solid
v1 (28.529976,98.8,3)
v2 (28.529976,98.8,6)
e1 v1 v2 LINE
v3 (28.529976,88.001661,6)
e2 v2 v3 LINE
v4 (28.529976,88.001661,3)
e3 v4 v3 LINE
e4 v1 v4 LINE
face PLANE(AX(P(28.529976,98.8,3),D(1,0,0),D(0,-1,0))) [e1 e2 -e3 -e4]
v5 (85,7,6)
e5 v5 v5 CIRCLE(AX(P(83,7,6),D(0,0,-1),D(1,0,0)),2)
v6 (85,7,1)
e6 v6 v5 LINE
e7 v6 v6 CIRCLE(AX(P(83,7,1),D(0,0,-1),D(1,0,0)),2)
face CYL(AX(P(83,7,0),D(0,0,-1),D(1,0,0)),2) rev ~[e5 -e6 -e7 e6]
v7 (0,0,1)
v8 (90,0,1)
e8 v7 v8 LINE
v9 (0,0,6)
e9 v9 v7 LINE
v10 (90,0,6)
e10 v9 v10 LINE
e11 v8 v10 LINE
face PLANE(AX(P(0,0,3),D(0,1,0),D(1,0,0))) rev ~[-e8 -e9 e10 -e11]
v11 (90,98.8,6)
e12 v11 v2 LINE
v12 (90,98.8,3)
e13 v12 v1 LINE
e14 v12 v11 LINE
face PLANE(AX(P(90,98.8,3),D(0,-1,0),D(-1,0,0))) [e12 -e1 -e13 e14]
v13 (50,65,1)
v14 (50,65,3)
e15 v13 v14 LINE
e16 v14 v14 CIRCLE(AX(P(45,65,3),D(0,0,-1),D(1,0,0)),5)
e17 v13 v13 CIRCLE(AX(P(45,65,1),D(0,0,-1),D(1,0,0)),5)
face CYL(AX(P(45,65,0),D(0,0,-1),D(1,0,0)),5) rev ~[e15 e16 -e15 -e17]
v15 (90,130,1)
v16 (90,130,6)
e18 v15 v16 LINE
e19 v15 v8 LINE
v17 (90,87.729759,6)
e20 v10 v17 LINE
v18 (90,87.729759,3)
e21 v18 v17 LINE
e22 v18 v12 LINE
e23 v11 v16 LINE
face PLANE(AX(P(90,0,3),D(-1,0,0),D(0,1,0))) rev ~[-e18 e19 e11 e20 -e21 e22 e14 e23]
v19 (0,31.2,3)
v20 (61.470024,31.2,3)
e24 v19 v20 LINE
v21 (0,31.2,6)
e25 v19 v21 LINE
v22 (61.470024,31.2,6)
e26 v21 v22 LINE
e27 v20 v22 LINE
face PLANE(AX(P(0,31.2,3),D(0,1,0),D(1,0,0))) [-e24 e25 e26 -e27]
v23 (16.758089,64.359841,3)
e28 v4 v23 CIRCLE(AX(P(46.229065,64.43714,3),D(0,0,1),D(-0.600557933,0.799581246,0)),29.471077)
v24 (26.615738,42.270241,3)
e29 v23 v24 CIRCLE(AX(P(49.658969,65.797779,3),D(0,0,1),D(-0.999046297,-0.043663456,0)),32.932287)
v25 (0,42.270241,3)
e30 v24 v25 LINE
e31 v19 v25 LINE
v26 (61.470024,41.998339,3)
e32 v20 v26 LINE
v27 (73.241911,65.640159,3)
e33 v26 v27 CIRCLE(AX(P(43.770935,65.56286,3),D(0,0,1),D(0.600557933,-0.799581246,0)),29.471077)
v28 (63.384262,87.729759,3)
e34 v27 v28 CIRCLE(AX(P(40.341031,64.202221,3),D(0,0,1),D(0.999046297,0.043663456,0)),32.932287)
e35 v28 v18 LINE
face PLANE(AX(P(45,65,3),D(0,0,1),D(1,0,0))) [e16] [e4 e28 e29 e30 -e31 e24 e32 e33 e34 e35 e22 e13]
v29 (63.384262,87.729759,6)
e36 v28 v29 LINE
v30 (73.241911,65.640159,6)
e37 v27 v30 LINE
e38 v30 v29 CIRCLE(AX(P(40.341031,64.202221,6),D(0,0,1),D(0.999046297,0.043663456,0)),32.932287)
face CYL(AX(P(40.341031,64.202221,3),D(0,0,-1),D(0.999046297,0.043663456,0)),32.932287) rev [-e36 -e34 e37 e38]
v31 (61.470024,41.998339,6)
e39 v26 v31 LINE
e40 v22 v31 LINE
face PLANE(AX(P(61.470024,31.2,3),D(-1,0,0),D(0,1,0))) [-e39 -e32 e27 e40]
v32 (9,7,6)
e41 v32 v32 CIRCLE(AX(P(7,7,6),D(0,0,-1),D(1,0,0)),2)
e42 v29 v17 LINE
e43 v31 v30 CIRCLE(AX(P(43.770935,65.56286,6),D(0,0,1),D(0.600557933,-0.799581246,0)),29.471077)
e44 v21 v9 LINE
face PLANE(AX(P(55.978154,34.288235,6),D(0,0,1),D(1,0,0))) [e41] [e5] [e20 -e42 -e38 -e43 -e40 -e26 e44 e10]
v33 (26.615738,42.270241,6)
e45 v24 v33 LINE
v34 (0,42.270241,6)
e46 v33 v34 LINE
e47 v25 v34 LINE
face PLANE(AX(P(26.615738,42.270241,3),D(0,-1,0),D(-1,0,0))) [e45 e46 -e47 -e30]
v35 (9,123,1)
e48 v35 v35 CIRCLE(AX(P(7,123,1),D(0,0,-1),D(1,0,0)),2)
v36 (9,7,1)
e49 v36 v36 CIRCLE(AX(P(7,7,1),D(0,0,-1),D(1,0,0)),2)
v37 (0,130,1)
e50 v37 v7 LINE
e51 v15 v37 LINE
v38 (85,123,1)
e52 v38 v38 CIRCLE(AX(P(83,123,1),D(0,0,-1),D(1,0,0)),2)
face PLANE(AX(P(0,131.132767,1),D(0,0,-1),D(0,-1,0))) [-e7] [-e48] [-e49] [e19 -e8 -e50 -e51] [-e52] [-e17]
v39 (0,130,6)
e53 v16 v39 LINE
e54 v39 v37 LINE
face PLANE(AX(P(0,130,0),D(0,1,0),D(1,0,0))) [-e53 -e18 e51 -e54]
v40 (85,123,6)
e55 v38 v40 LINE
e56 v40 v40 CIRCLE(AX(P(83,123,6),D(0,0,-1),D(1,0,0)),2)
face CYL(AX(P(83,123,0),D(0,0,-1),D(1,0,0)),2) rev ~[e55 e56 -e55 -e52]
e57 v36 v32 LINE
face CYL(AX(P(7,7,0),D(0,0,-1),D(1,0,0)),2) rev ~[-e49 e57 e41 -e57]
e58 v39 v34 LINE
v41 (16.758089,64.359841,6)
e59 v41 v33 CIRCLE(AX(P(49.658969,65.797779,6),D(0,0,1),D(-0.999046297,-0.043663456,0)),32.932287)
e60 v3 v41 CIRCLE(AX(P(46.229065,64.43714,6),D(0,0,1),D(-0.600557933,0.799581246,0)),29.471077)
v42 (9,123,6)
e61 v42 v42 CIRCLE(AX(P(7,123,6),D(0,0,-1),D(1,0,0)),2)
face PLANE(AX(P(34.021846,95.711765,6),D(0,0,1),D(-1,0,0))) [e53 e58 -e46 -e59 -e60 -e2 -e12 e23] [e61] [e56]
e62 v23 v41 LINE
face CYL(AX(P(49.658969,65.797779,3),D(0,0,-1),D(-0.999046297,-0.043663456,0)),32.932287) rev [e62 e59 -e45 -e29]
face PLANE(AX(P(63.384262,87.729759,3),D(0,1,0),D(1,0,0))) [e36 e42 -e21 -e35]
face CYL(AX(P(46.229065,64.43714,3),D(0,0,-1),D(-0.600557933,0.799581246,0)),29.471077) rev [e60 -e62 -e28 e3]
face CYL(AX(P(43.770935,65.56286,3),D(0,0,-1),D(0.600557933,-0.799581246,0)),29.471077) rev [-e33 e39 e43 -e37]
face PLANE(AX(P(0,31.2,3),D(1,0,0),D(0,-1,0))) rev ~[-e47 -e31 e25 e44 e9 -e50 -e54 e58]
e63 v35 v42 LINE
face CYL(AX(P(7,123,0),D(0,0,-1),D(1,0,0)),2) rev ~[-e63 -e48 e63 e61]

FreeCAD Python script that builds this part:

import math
import FreeCAD as App
import Part
import Sketcher
from FreeCAD import Vector


def add_polygon(sketch, points):
    """Adds a closed chain of lines whose ends are joined by coincident constraints."""
    first, n = sketch.GeometryCount, len(points)
    for a, b in zip(points, points[1:] + points[:1]):
        sketch.addGeometry(Part.LineSegment(App.Vector(*a, 0), App.Vector(*b, 0)), False)
    for i in range(n):
        sketch.addConstraint(Sketcher.Constraint("Coincident", first + i, 2, first + (i + 1) % n, 1))

doc = App.newDocument("Part")
body = doc.addObject("PartDesign::Body", "Body")

sketch1 = body.newObject("Sketcher::SketchObject", "Sketch")
sketch1.AttachmentSupport = (doc.getObject("XY_Plane"), [""])
sketch1.MapMode = "FlatFace"
add_polygon(sketch1, [(0, 130), (0, 0), (90, 0), (90, 130)])
sketch1.addConstraint([
    Sketcher.Constraint("Vertical", 0),
    Sketcher.Constraint("Horizontal", 1),
    Sketcher.Constraint("Vertical", 2),
    Sketcher.Constraint("Horizontal", 3),
    Sketcher.Constraint("Coincident", 0, 2, -1, 1),
    Sketcher.Constraint("DistanceX", 1, 1, 1, 2, 90.0),
    Sketcher.Constraint("DistanceY", 0, 2, 0, 1, 130.0),
])
pad1 = body.newObject("PartDesign::Pad", "Pad")
pad1.Profile = sketch1
pad1.Length = 3

sketch2 = body.newObject("Sketcher::SketchObject", "Sketch001")
sketch2.AttachmentSupport = (doc.getObject("XY_Plane"), [""])
sketch2.MapMode = "FlatFace"
sketch2.AttachmentOffset = App.Placement(Vector(0, 0, 3), App.Rotation())
sketch2.addGeometry([
    Part.LineSegment(Vector(0, 0, 0), Vector(90, 0, 0)),
    Part.LineSegment(Vector(90, 0, 0), Vector(90, 87.729759, 0)),
    Part.LineSegment(Vector(90, 87.729759, 0), Vector(63.384262, 87.729759, 0)),
    Part.ArcOfCircle(Part.Circle(Vector(40.341031, 64.202221, 0), Vector(0, 0, 1), 32.932287), math.radians(2.502527), math.radians(45.59582)),
    Part.ArcOfCircle(Part.Circle(Vector(43.770935, 65.56286, 0), Vector(0, 0, 1), 29.471077), math.radians(-53.090133), math.radians(0.150279)),
    Part.LineSegment(Vector(61.470024, 41.998339, 0), Vector(61.470024, 31.2, 0)),
    Part.LineSegment(Vector(61.470024, 31.2, 0), Vector(0, 31.2, 0)),
    Part.LineSegment(Vector(0, 31.2, 0), Vector(0, 0, 0)),
], False)
sketch2.addConstraint([
    Sketcher.Constraint("Coincident", 0, 2, 1, 1),
    Sketcher.Constraint("Coincident", 1, 2, 2, 1),
    Sketcher.Constraint("Coincident", 2, 2, 3, 2),
    Sketcher.Constraint("Coincident", 3, 1, 4, 2),
    Sketcher.Constraint("Coincident", 4, 1, 5, 1),
    Sketcher.Constraint("Coincident", 5, 2, 6, 1),
    Sketcher.Constraint("Coincident", 6, 2, 7, 1),
    Sketcher.Constraint("Coincident", 7, 2, 0, 1),
    Sketcher.Constraint("Horizontal", 0),
    Sketcher.Constraint("Vertical", 1),
    Sketcher.Constraint("Horizontal", 2),
    Sketcher.Constraint("Vertical", 5),
    Sketcher.Constraint("Horizontal", 6),
    Sketcher.Constraint("Vertical", 7),
    Sketcher.Constraint("Coincident", 7, 2, -1, 1),
    Sketcher.Constraint("DistanceX", 0, 1, 0, 2, 90.0),
    Sketcher.Constraint("DistanceY", 7, 2, 7, 1, 31.2),
    Sketcher.Constraint("Radius", 3, 32.932287),
    Sketcher.Constraint("Radius", 4, 29.471077),
    Sketcher.Constraint("DistanceX", 2, 2, 2, 1, 26.615738),
    Sketcher.Constraint("DistanceY", 1, 1, 1, 2, 87.729759),
    Sketcher.Constraint("DistanceY", 5, 2, 5, 1, 10.798339),
    Sketcher.Constraint("DistanceY", 4, 3, 1, 2, 22.166899),
    Sketcher.Constraint("DistanceY", 3, 1, 2, 2, 22.089601),
    Sketcher.Constraint("DistanceX", 6, 2, 6, 1, 61.470024),
])
pad2 = body.newObject("PartDesign::Pad", "Pad001")
pad2.Profile = sketch2
pad2.Length = 3
body2 = doc.addObject("PartDesign::Body", "Body001")

sketch3 = body2.newObject("Sketcher::SketchObject", "Sketch002")
sketch3.AttachmentSupport = (doc.getObject("XY_Plane001"), [""])
sketch3.MapMode = "FlatFace"
sketch3.AttachmentOffset = App.Placement(Vector(0, 0, 3), App.Rotation())
sketch3.addGeometry([
    Part.LineSegment(Vector(90, 130, 0), Vector(0, 130, 0)),
    Part.LineSegment(Vector(0, 130, 0), Vector(0, 42.270241, 0)),
    Part.LineSegment(Vector(0, 42.270241, 0), Vector(26.615738, 42.270241, 0)),
    Part.ArcOfCircle(Part.Circle(Vector(49.658969, 65.797779, 0), Vector(0, 0, 1), 32.932287), math.radians(-177.497473), math.radians(-134.40418)),
    Part.ArcOfCircle(Part.Circle(Vector(46.229065, 64.43714, 0), Vector(0, 0, 1), 29.471077), math.radians(126.909867), math.radians(180.150279)),
    Part.LineSegment(Vector(28.529976, 88.001661, 0), Vector(28.529976, 98.8, 0)),
    Part.LineSegment(Vector(28.529976, 98.8, 0), Vector(90, 98.8, 0)),
    Part.LineSegment(Vector(90, 98.8, 0), Vector(90, 130, 0)),
], False)
sketch3.addConstraint([
    Sketcher.Constraint("Coincident", 0, 2, 1, 1),
    Sketcher.Constraint("Coincident", 1, 2, 2, 1),
    Sketcher.Constraint("Coincident", 2, 2, 3, 2),
    Sketcher.Constraint("Coincident", 3, 1, 4, 2),
    Sketcher.Constraint("Coincident", 4, 1, 5, 1),
    Sketcher.Constraint("Coincident", 5, 2, 6, 1),
    Sketcher.Constraint("Coincident", 6, 2, 7, 1),
    Sketcher.Constraint("Coincident", 7, 2, 0, 1),
    Sketcher.Constraint("Horizontal", 0),
    Sketcher.Constraint("Vertical", 1),
    Sketcher.Constraint("Horizontal", 2),
    Sketcher.Constraint("Vertical", 5),
    Sketcher.Constraint("Horizontal", 6),
    Sketcher.Constraint("Vertical", 7),
    Sketcher.Constraint("PointOnObject", 0, 2, -2),
    Sketcher.Constraint("DistanceX", 0, 2, 0, 1, 90.0),
    Sketcher.Constraint("DistanceY", 7, 1, 7, 2, 31.2),
    Sketcher.Constraint("DistanceY", -1, 1, 0, 2, 130.0),
    Sketcher.Constraint("Radius", 3, 32.932287),
    Sketcher.Constraint("Radius", 4, 29.471077),
    Sketcher.Constraint("DistanceX", 2, 1, 2, 2, 26.615738),
    Sketcher.Constraint("DistanceY", 1, 2, 1, 1, 87.729759),
    Sketcher.Constraint("DistanceY", 5, 1, 5, 2, 10.798339),
    Sketcher.Constraint("DistanceY", 1, 2, 4, 3, 22.166899),
    Sketcher.Constraint("DistanceY", 2, 2, 3, 1, 22.089601),
    Sketcher.Constraint("DistanceX", 6, 1, 6, 2, 61.470024),
])
pad3 = body2.newObject("PartDesign::Pad", "Pad002")
pad3.Profile = sketch3
pad3.Length = 3
doc.recompute()

boolean = body2.newObject("PartDesign::Boolean", "Boolean")
boolean.Type = "Fuse"
boolean.addObjects([body])

sketch4 = body2.newObject("Sketcher::SketchObject", "Sketch003")
sketch4.AttachmentSupport = (doc.getObject("XY_Plane001"), [""])
sketch4.MapMode = "FlatFace"
sketch4.addGeometry([
    Part.Circle(Vector(45, 65, 0), Vector(0, 0, 1), 5),
    Part.Circle(Vector(7, 7, 0), Vector(0, 0, 1), 2),
    Part.Circle(Vector(7, 123, 0), Vector(0, 0, 1), 2),
    Part.Circle(Vector(83, 123, 0), Vector(0, 0, 1), 2),
    Part.Circle(Vector(83, 7, 0), Vector(0, 0, 1), 2),
], False)
sketch4.addConstraint([
    Sketcher.Constraint("Equal", 1, 2),
    Sketcher.Constraint("Equal", 2, 3),
    Sketcher.Constraint("Equal", 3, 4),
    Sketcher.Constraint("Horizontal", 2, 3, 3, 3),
    Sketcher.Constraint("Horizontal", 1, 3, 4, 3),
    Sketcher.Constraint("Vertical", 1, 3, 2, 3),
    Sketcher.Constraint("Vertical", 3, 3, 4, 3),
    Sketcher.Constraint("Diameter", 0, 10.0),
    Sketcher.Constraint("Diameter", 1, 4.0),
    Sketcher.Constraint("DistanceX", -1, 1, 0, 3, 45.0),
    Sketcher.Constraint("DistanceY", -1, 1, 0, 3, 65.0),
    Sketcher.Constraint("DistanceX", -1, 1, 1, 3, 7.0),
    Sketcher.Constraint("DistanceY", -1, 1, 1, 3, 7.0),
    Sketcher.Constraint("DistanceY", -1, 1, 2, 3, 123.0),
    Sketcher.Constraint("DistanceX", -1, 1, 3, 3, 83.0),
])
pocket1 = body2.newObject("PartDesign::Pocket", "Pocket")
pocket1.Profile = sketch4
pocket1.Length = 10
pocket1.Reversed = True

sketch5 = body2.newObject("Sketcher::SketchObject", "Sketch004")
sketch5.AttachmentSupport = (doc.getObject("YZ_Plane001"), [""])
sketch5.MapMode = "FlatFace"
add_polygon(sketch5, [(131.132767, 1), (131.132767, 0), (0, 0), (0, 1)])
sketch5.addConstraint([
    Sketcher.Constraint("Vertical", 0),
    Sketcher.Constraint("Horizontal", 1),
    Sketcher.Constraint("Vertical", 2),
    Sketcher.Constraint("Horizontal", 3),
    Sketcher.Constraint("Coincident", 1, 2, -1, 1),
    Sketcher.Constraint("DistanceY", 0, 2, 0, 1, 1.0),
    Sketcher.Constraint("DistanceX", 1, 2, 1, 1, 131.132767),
])
pocket2 = body2.newObject("PartDesign::Pocket", "Pocket001")
pocket2.Profile = sketch5
pocket2.Length = 100
pocket2.Reversed = True

doc.recompute()
